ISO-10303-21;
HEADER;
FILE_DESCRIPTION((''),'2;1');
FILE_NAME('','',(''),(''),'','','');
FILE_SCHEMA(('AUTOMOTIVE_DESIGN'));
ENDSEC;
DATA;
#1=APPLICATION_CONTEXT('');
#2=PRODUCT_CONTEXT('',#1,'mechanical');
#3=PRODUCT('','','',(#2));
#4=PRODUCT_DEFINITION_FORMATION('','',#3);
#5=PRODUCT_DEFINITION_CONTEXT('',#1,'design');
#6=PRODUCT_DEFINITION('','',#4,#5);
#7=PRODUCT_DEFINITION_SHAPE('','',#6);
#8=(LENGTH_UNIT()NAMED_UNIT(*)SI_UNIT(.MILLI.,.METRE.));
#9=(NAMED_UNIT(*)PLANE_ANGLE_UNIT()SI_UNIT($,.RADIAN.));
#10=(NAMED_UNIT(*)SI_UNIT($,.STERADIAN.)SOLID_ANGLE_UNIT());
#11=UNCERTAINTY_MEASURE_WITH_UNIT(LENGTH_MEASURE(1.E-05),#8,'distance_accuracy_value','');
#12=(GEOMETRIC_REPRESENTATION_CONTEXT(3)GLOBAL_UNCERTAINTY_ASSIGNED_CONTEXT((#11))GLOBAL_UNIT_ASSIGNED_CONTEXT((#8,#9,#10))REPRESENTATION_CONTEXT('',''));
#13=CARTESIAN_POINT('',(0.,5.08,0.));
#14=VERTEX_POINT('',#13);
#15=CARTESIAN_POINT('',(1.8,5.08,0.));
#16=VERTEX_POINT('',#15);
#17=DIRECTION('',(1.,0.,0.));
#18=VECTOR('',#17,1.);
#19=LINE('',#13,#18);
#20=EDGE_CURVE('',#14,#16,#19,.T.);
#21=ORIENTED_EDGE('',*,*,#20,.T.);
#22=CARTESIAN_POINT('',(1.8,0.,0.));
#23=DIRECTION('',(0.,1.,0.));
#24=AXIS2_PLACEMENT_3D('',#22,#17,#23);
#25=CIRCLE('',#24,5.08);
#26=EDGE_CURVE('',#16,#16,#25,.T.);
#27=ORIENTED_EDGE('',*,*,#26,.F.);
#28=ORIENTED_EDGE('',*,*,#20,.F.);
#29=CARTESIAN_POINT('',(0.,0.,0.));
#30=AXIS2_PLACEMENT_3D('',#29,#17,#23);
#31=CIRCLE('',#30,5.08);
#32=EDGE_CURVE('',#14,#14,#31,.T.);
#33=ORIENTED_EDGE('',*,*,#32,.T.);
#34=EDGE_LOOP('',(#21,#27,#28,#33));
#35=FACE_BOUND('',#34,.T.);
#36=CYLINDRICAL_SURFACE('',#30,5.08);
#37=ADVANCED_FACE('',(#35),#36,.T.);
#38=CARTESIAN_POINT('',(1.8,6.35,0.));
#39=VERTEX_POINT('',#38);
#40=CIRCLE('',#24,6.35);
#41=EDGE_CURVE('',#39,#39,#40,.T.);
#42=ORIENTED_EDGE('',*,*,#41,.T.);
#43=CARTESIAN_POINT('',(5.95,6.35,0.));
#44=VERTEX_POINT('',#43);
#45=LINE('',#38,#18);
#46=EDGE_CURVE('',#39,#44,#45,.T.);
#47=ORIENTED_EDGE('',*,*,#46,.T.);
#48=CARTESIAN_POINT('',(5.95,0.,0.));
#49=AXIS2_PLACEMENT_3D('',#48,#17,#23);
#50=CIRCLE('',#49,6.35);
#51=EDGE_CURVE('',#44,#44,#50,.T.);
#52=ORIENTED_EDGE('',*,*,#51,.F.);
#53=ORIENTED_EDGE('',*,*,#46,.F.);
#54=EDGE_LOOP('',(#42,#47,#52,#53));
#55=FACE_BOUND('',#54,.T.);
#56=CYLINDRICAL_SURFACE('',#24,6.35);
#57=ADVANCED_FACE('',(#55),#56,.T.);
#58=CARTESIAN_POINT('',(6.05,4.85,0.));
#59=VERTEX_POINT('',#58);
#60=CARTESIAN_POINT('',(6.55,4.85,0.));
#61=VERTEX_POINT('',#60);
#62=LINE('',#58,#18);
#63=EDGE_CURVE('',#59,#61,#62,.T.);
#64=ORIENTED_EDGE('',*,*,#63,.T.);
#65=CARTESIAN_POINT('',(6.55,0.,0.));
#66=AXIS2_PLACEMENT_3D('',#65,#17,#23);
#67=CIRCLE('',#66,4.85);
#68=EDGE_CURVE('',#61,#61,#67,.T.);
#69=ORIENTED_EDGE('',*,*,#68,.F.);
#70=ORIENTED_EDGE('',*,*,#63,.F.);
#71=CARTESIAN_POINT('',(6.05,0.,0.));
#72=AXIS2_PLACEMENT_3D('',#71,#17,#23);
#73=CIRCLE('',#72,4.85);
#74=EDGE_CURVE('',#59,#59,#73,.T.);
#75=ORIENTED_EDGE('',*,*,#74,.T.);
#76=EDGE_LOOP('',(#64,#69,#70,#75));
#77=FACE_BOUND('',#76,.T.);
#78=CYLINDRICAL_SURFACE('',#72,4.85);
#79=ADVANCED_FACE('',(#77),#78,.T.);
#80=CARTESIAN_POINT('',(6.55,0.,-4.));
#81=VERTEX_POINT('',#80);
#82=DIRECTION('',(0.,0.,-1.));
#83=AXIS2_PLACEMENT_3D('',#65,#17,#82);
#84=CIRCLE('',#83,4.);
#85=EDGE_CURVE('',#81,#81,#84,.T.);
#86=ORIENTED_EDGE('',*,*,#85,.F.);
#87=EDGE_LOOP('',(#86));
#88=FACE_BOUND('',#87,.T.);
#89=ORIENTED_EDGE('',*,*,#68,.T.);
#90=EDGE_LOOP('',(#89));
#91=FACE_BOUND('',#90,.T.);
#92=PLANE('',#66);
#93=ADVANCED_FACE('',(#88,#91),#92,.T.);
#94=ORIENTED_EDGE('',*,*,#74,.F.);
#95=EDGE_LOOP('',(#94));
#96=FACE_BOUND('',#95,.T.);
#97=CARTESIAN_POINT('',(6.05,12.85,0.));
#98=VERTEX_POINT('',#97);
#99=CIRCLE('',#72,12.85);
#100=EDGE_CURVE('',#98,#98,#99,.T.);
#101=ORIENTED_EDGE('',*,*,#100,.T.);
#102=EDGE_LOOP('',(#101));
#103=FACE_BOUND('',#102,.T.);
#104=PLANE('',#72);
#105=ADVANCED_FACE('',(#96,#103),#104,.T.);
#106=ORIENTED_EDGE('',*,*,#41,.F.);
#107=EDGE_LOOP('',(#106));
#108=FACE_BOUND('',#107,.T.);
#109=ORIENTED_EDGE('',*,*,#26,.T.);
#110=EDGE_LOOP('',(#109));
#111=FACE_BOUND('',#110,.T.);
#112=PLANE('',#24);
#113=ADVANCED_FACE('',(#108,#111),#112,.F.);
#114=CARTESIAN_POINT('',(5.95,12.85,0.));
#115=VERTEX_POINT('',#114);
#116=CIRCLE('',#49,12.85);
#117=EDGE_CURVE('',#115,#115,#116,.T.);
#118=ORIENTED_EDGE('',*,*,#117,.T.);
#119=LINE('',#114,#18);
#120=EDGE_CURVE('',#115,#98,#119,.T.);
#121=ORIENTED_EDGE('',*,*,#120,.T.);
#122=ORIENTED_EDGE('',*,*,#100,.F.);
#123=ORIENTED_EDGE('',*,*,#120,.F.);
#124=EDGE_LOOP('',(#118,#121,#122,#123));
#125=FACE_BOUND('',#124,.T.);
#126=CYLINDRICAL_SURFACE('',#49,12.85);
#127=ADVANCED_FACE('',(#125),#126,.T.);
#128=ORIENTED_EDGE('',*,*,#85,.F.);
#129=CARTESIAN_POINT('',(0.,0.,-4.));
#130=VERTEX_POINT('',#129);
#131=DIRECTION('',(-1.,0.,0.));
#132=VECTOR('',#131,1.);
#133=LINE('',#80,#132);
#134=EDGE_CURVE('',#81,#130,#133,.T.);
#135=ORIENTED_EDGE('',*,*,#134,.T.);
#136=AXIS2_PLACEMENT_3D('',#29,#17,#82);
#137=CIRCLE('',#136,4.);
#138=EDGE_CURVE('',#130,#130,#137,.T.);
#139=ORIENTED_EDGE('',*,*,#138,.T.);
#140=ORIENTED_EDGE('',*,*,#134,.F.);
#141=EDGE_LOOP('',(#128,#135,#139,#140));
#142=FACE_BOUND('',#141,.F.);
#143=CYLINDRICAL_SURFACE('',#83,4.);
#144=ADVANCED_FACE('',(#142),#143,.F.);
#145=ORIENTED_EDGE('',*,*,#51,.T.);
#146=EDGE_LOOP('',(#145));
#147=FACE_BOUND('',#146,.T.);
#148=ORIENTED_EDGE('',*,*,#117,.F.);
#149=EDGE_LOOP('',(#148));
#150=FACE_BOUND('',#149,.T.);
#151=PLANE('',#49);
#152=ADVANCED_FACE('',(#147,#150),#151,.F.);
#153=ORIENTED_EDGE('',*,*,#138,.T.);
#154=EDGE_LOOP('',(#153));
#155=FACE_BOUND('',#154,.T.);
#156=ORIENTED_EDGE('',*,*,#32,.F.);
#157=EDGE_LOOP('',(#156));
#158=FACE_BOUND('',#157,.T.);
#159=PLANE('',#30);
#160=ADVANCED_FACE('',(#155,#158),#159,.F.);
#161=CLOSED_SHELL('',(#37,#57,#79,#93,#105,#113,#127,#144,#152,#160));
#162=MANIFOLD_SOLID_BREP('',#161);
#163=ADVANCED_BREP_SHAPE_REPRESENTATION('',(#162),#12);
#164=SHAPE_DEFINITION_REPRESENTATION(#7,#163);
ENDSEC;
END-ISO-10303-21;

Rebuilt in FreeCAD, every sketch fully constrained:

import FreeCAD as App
import Part
import Sketcher
from FreeCAD import Vector
Q = App.Units.Quantity

doc = App.newDocument("Part")
body = doc.addObject("PartDesign::Body", "Body")

# Sketch on XY plane
sketch1 = body.newObject("Sketcher::SketchObject", "Sketch")
sketch1.AttachmentSupport = (doc.getObject("XY_Plane"), [""])
sketch1.MapMode = "FlatFace"
sketch1.addGeometry([
    Part.LineSegment(Vector(0, 5.08, 0), Vector(0, 0, 0)),  # 0
    Part.LineSegment(Vector(0, 0, 0), Vector(6.55, 0, 0)),  # 1
    Part.LineSegment(Vector(6.55, 0, 0), Vector(6.55, 4.85, 0)),  # 2
    Part.LineSegment(Vector(6.55, 4.85, 0), Vector(6.05, 4.85, 0)),  # 3
    Part.LineSegment(Vector(6.05, 4.85, 0), Vector(6.05, 12.85, 0)),  # 4
    Part.LineSegment(Vector(6.05, 12.85, 0), Vector(5.95, 12.85, 0)),  # 5
    Part.LineSegment(Vector(5.95, 12.85, 0), Vector(5.95, 6.35, 0)),  # 6
    Part.LineSegment(Vector(5.95, 6.35, 0), Vector(1.8, 6.35, 0)),  # 7
    Part.LineSegment(Vector(1.8, 6.35, 0), Vector(1.8, 5.08, 0)),  # 8
    Part.LineSegment(Vector(1.8, 5.08, 0), Vector(0, 5.08, 0)),  # 9
], False)
sketch1.addConstraint([
    Sketcher.Constraint("Coincident", 0, 2, 1, 1),
    Sketcher.Constraint("Coincident", 1, 2, 2, 1),
    Sketcher.Constraint("Coincident", 2, 2, 3, 1),
    Sketcher.Constraint("Coincident", 3, 2, 4, 1),
    Sketcher.Constraint("Coincident", 4, 2, 5, 1),
    Sketcher.Constraint("Coincident", 5, 2, 6, 1),
    Sketcher.Constraint("Coincident", 6, 2, 7, 1),
    Sketcher.Constraint("Coincident", 7, 2, 8, 1),
    Sketcher.Constraint("Coincident", 8, 2, 9, 1),
    Sketcher.Constraint("Coincident", 9, 2, 0, 1),
    Sketcher.Constraint("Vertical", 0),
    Sketcher.Constraint("Horizontal", 1),
    Sketcher.Constraint("Vertical", 2),
    Sketcher.Constraint("Horizontal", 3),
    Sketcher.Constraint("Vertical", 4),
    Sketcher.Constraint("Horizontal", 5),
    Sketcher.Constraint("Vertical", 6),
    Sketcher.Constraint("Horizontal", 7),
    Sketcher.Constraint("Vertical", 8),
    Sketcher.Constraint("Horizontal", 9),
    Sketcher.Constraint("Coincident", 0, 2, -1, 1),
    Sketcher.Constraint("DistanceY", 4, 1, 4, 2, Q("8 mm")),
    Sketcher.Constraint("DistanceX", 3, 2, 3, 1, Q("0.5 mm")),
    Sketcher.Constraint("DistanceX", 5, 2, 5, 1, Q("0.1 mm")),
    Sketcher.Constraint("DistanceX", 9, 2, 9, 1, Q("1.8 mm")),
    Sketcher.Constraint("DistanceY", 6, 2, 6, 1, Q("6.5 mm")),
    Sketcher.Constraint("DistanceX", 7, 2, 7, 1, Q("4.15 mm")),
    Sketcher.Constraint("DistanceY", 0, 2, 0, 1, Q("5.08 mm")),
    Sketcher.Constraint("DistanceY", 8, 2, 8, 1, Q("1.27 mm")),
])
revolution = body.newObject("PartDesign::Revolution", "Revolution")
revolution.Profile = sketch1
revolution.ReferenceAxis = (sketch1, ["H_Axis"])
revolution.Angle = 360

# Sketch on YZ plane
sketch2 = body.newObject("Sketcher::SketchObject", "Sketch001")
sketch2.AttachmentSupport = (doc.getObject("YZ_Plane"), [""])
sketch2.MapMode = "FlatFace"
sketch2.AttachmentOffset = App.Placement(Vector(0, 0, 6.55), App.Rotation())
sketch2.addGeometry(Part.Circle(Vector(0, 0, 0), Vector(0, 0, 1), 4), False)
sketch2.addConstraint([
    Sketcher.Constraint("Coincident", 0, 3, -1, 1),
    Sketcher.Constraint("Diameter", 0, Q("8 mm")),
])
pocket1 = body.newObject("PartDesign::Pocket", "Pocket")
pocket1.Profile = sketch2
pocket1.Length = 10

doc.recompute()
